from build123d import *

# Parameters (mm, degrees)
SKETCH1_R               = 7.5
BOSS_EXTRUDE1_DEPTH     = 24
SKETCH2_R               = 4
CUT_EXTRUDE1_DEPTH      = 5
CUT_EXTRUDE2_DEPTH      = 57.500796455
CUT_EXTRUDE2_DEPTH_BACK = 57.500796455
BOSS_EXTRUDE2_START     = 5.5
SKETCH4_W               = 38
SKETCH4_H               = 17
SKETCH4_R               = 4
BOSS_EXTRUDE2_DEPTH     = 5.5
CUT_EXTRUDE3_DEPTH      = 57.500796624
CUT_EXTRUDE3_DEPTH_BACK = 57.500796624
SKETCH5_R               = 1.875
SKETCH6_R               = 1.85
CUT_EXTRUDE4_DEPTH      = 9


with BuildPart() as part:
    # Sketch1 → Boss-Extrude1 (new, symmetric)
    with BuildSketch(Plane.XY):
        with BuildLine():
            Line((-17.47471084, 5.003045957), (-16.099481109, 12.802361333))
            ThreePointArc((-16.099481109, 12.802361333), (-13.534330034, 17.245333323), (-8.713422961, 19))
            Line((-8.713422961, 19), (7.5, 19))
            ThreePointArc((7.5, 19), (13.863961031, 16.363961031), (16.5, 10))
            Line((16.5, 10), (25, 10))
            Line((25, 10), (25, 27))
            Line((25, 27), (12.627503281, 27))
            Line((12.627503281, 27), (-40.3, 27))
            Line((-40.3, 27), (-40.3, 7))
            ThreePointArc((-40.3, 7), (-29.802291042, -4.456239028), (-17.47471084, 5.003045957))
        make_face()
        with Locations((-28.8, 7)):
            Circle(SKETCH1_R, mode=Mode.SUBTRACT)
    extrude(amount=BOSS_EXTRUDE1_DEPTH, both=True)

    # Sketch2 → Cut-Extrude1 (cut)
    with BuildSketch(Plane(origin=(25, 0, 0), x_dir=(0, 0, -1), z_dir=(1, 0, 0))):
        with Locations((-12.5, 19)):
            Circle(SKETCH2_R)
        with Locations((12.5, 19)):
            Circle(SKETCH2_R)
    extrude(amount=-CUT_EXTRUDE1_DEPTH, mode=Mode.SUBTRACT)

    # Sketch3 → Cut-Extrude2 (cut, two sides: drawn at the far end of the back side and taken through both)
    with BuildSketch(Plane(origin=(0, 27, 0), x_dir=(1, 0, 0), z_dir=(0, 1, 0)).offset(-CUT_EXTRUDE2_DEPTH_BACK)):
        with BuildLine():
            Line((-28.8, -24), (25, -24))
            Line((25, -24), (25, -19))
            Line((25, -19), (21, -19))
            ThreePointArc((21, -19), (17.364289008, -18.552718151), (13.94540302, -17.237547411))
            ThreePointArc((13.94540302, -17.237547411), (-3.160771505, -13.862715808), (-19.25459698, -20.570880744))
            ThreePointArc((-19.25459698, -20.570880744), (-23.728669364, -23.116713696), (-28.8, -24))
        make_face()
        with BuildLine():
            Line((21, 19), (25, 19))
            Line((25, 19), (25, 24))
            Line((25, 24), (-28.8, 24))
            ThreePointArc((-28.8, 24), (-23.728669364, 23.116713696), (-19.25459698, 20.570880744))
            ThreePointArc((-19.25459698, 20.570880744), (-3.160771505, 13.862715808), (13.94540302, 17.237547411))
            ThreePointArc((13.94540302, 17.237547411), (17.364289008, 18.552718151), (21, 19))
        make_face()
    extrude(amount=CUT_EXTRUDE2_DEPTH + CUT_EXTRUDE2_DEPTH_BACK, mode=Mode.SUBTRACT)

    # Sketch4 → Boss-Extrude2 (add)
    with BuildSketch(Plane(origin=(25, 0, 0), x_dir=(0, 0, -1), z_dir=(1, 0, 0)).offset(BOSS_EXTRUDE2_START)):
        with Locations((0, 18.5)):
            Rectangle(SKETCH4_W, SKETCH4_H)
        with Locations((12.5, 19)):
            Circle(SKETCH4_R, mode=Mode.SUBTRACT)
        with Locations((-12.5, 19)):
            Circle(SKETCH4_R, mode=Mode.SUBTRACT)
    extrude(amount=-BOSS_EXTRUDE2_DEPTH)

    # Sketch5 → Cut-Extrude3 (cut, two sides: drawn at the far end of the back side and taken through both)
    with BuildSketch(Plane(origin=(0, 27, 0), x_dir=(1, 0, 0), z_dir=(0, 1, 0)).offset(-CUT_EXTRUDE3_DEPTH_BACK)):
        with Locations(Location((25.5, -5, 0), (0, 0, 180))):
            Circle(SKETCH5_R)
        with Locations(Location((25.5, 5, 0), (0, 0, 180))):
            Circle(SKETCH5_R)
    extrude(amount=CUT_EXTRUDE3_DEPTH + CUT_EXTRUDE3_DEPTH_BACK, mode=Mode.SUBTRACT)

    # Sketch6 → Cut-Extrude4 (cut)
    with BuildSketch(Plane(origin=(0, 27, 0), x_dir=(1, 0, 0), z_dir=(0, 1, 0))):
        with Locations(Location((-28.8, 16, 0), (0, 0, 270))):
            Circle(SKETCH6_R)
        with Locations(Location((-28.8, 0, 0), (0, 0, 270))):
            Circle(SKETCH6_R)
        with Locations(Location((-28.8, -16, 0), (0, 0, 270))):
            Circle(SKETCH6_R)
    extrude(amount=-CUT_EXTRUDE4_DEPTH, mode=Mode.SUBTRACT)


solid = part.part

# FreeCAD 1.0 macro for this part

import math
import FreeCAD as App
import Part
import Sketcher
from FreeCAD import Vector
Q = App.Units.Quantity

doc = App.newDocument("Part")
body = doc.addObject("PartDesign::Body", "Body")

# Sketch on XY plane
sketch1 = body.newObject("Sketcher::SketchObject", "Sketch")
sketch1.AttachmentSupport = (doc.getObject("XY_Plane"), [""])
sketch1.MapMode = "FlatFace"
sketch1.addGeometry([
    Part.LineSegment(Vector(-17, 5, 0), Vector(-16, 13, 0)),  # 0
    Part.ArcOfCircle(Part.Circle(Vector(-9, 11, 0), Vector(0, 0, 1), 8), math.radians(90), math.radians(170)),  # 1
    Part.LineSegment(Vector(-9, 19, 0), Vector(8, 19, 0)),  # 2
    Part.ArcOfCircle(Part.Circle(Vector(8, 10, 0), Vector(0, 0, 1), 9), math.radians(0), math.radians(90)),  # 3
    Part.LineSegment(Vector(16, 10, 0), Vector(25, 10, 0)),  # 4
    Part.LineSegment(Vector(25, 10, 0), Vector(25, 27, 0)),  # 5
    Part.LineSegment(Vector(25, 27, 0), Vector(-40, 27, 0)),  # 6
    Part.LineSegment(Vector(-40, 27, 0), Vector(-40, 7, 0)),  # 7
    Part.ArcOfCircle(Part.Circle(Vector(-29, 7, 0), Vector(0, 0, 1), 12), math.radians(180), math.radians(350)),  # 8
    Part.Circle(Vector(-29, 7, 0), Vector(0, 0, 1), 8),  # 9
], False)
sketch1.addConstraint([
    Sketcher.Constraint("Tangent", 0, 2, 1, 2),
    Sketcher.Constraint("Tangent", 1, 1, 2, 1),
    Sketcher.Constraint("Tangent", 2, 2, 3, 2),
    Sketcher.Constraint("Coincident", 3, 1, 4, 1),
    Sketcher.Constraint("Coincident", 4, 2, 5, 1),
    Sketcher.Constraint("Coincident", 5, 2, 6, 1),
    Sketcher.Constraint("Coincident", 6, 2, 7, 1),
    Sketcher.Constraint("Tangent", 7, 2, 8, 1),
    Sketcher.Constraint("Tangent", 8, 2, 0, 1),
    Sketcher.Constraint("Horizontal", 2),
    Sketcher.Constraint("Horizontal", 4),
    Sketcher.Constraint("Vertical", 5),
    Sketcher.Constraint("Horizontal", 6),
    Sketcher.Constraint("Vertical", 7),
    Sketcher.Constraint("Coincident", 9, 3, 8, 3),
    Sketcher.Constraint("Equal", 1, 9),
    Sketcher.Constraint("Diameter", 9, 15.0),
    Sketcher.Constraint("Radius", 3, 9.0),
    Sketcher.Constraint("Radius", 8, 11.5),
    Sketcher.Constraint("DistanceY", 5, 1, 5, 2, 17.0),
    Sketcher.Constraint("DistanceY", 7, 2, 7, 1, 20.0),
    Sketcher.Constraint("Angle", 0, Q("80 deg")),
    Sketcher.Constraint("DistanceX", 4, 1, 4, 2, 8.5),
    Sketcher.Constraint("DistanceX", 6, 2, 6, 1, 65.3),
    Sketcher.Constraint("DistanceY", -1, 1, 3, 3, 10.0),
    Sketcher.Constraint("DistanceY", -1, 1, 8, 3, 7.0),
    Sketcher.Constraint("DistanceX", -1, 1, 4, 2, 25.0),
])
pad1 = body.newObject("PartDesign::Pad", "Pad")
pad1.Profile = sketch1
pad1.Length = 48
pad1.Midplane = True

# Sketch on YZ plane
sketch2 = body.newObject("Sketcher::SketchObject", "Sketch001")
sketch2.AttachmentSupport = (doc.getObject("YZ_Plane"), [""])
sketch2.MapMode = "FlatFace"
sketch2.AttachmentOffset = App.Placement(Vector(0, 0, 25), App.Rotation())
sketch2.addGeometry([
    Part.Circle(Vector(19, 12.5, 0), Vector(0, 0, 1), 4),
    Part.Circle(Vector(19, -12.5, 0), Vector(0, 0, 1), 4),
], False)
sketch2.addConstraint([
    Sketcher.Constraint("Equal", 0, 1),
    Sketcher.Constraint("Symmetric", 0, 3, 1, 3, -1),
    Sketcher.Constraint("Diameter", 0, 8.0),
    Sketcher.Constraint("DistanceX", -1, 1, 0, 3, 19.0),
    Sketcher.Constraint("DistanceY", 1, 3, 0, 3, 25.0),
])
pocket1 = body.newObject("PartDesign::Pocket", "Pocket")
pocket1.Profile = sketch2
pocket1.Length = 5

# Sketch on XZ plane
sketch3 = body.newObject("Sketcher::SketchObject", "Sketch002")
sketch3.AttachmentSupport = (doc.getObject("XZ_Plane"), [""])
sketch3.MapMode = "FlatFace"
sketch3.AttachmentOffset = App.Placement(Vector(0, 0, -27), App.Rotation())
sketch3.addGeometry([
    Part.LineSegment(Vector(-28.8, 24, 0), Vector(25, 24, 0)),  # 0
    Part.LineSegment(Vector(25, 24, 0), Vector(25, 19, 0)),  # 1
    Part.LineSegment(Vector(25, 19, 0), Vector(21, 19, 0)),  # 2
    Part.ArcOfCircle(Part.Circle(Vector(21, 4, 0), Vector(0, 0, 1), 15), math.radians(90), math.radians(118)),  # 3
    Part.ArcOfCircle(Part.Circle(Vector(-0.2, 43.7, 0), Vector(0, 0, 1), 30), math.radians(-130), math.radians(-62)),  # 4
    Part.ArcOfCircle(Part.Circle(Vector(-28.8, 9, 0), Vector(0, 0, 1), 15), math.radians(50), math.radians(90)),  # 5
    Part.LineSegment(Vector(21, -19, 0), Vector(25, -19, 0)),  # 6
    Part.LineSegment(Vector(25, -19, 0), Vector(25, -24, 0)),  # 7
    Part.LineSegment(Vector(25, -24, 0), Vector(-28.8, -24, 0)),  # 8
    Part.ArcOfCircle(Part.Circle(Vector(-28.8, -9, 0), Vector(0, 0, 1), 15), math.radians(-90), math.radians(-50)),  # 9
    Part.ArcOfCircle(Part.Circle(Vector(-0.2, -43.7, 0), Vector(0, 0, 1), 30), math.radians(62), math.radians(130)),  # 10
    Part.ArcOfCircle(Part.Circle(Vector(21, -4, 0), Vector(0, 0, 1), 15), math.radians(-118), math.radians(-90)),  # 11
], False)
sketch3.addConstraint([
    Sketcher.Constraint("Coincident", 0, 2, 1, 1),
    Sketcher.Constraint("Coincident", 1, 2, 2, 1),
    Sketcher.Constraint("Tangent", 2, 2, 3, 1),
    Sketcher.Constraint("Tangent", 3, 2, 4, 2),
    Sketcher.Constraint("Tangent", 4, 1, 5, 1),
    Sketcher.Constraint("Tangent", 5, 2, 0, 1),
    Sketcher.Constraint("Coincident", 6, 2, 7, 1),
    Sketcher.Constraint("Coincident", 7, 2, 8, 1),
    Sketcher.Constraint("Tangent", 8, 2, 9, 1),
    Sketcher.Constraint("Tangent", 9, 2, 10, 2),
    Sketcher.Constraint("Tangent", 10, 1, 11, 1),
    Sketcher.Constraint("Tangent", 11, 2, 6, 1),
    Sketcher.Constraint("Horizontal", 0),
    Sketcher.Constraint("Vertical", 1),
    Sketcher.Constraint("Horizontal", 2),
    Sketcher.Constraint("Horizontal", 6),
    Sketcher.Constraint("Vertical", 7),
    Sketcher.Constraint("Horizontal", 8),
    Sketcher.Constraint("Equal", 3, 5),
    Sketcher.Constraint("Equal", 5, 9),
    Sketcher.Constraint("Equal", 4, 10),
    Sketcher.Constraint("Equal", 9, 11),
    Sketcher.Constraint("Symmetric", 5, 3, 9, 3, -1),
    Sketcher.Constraint("Symmetric", 3, 3, 11, 3, -1),
    Sketcher.Constraint("Vertical", 1, 2, 6, 2),
    Sketcher.Constraint("Radius", 3, 15.0),
    Sketcher.Constraint("Radius", 4, 30.0),
    Sketcher.Constraint("DistanceX", 2, 2, 2, 1, 4.0),
    Sketcher.Constraint("DistanceY", 1, 2, 1, 1, 5.0),
    Sketcher.Constraint("DistanceX", 0, 1, 0, 2, 53.8),
    Sketcher.Constraint("DistanceX", -1, 1, 3, 3, 21.0),
    Sketcher.Constraint("DistanceY", -1, 1, 3, 3, 4.0),
])
pocket2 = body.newObject("PartDesign::Pocket", "Pocket001")
pocket2.Profile = sketch3
pocket2.Type = "ThroughAll"
pocket2.Midplane = True

# Sketch on YZ plane
sketch4 = body.newObject("Sketcher::SketchObject", "Sketch003")
sketch4.AttachmentSupport = (doc.getObject("YZ_Plane"), [""])
sketch4.MapMode = "FlatFace"
sketch4.AttachmentOffset = App.Placement(Vector(0, 0, 30.5), App.Rotation())
sketch4.addGeometry([
    Part.LineSegment(Vector(27, 19, 0), Vector(10, 19, 0)),  # 0
    Part.LineSegment(Vector(10, 19, 0), Vector(10, -19, 0)),  # 1
    Part.LineSegment(Vector(10, -19, 0), Vector(27, -19, 0)),  # 2
    Part.LineSegment(Vector(27, -19, 0), Vector(27, 19, 0)),  # 3
    Part.Circle(Vector(19, 12.5, 0), Vector(0, 0, 1), 4),  # 4
    Part.Circle(Vector(19, -12.5, 0), Vector(0, 0, 1), 4),  # 5
], False)
sketch4.addConstraint([
    Sketcher.Constraint("Coincident", 0, 2, 1, 1),
    Sketcher.Constraint("Coincident", 1, 2, 2, 1),
    Sketcher.Constraint("Coincident", 2, 2, 3, 1),
    Sketcher.Constraint("Coincident", 3, 2, 0, 1),
    Sketcher.Constraint("Horizontal", 0),
    Sketcher.Constraint("Vertical", 1),
    Sketcher.Constraint("Horizontal", 2),
    Sketcher.Constraint("Vertical", 3),
    Sketcher.Constraint("Equal", 4, 5),
    Sketcher.Constraint("Symmetric", 4, 3, 5, 3, -1),
    Sketcher.Constraint("Diameter", 4, 8.0),
    Sketcher.Constraint("DistanceX", 0, 2, 0, 1, 17.0),
    Sketcher.Constraint("DistanceY", 1, 2, 1, 1, 38.0),
    Sketcher.Constraint("DistanceX", -1, 1, 4, 3, 19.0),
    Sketcher.Constraint("DistanceX", -1, 1, 0, 2, 10.0),
    Sketcher.Constraint("DistanceY", -1, 1, 0, 2, 19.0),
    Sketcher.Constraint("DistanceY", 5, 3, 4, 3, 25.0),
])
pad2 = body.newObject("PartDesign::Pad", "Pad001")
pad2.Profile = sketch4
pad2.Length = 5.5
pad2.Reversed = True

# Sketch on XZ plane
sketch5 = body.newObject("Sketcher::SketchObject", "Sketch004")
sketch5.AttachmentSupport = (doc.getObject("XZ_Plane"), [""])
sketch5.MapMode = "FlatFace"
sketch5.AttachmentOffset = App.Placement(Vector(0, 0, -27), App.Rotation())
sketch5.addGeometry([
    Part.Circle(Vector(25.5, 5, 0), Vector(0, 0, 1), 1.9),
    Part.Circle(Vector(25.5, -5, 0), Vector(0, 0, 1), 1.9),
], False)
sketch5.addConstraint([
    Sketcher.Constraint("Equal", 0, 1),
    Sketcher.Constraint("Symmetric", 0, 3, 1, 3, -1),
    Sketcher.Constraint("Diameter", 0, 3.75),
    Sketcher.Constraint("DistanceY", -1, 1, 0, 3, 5.0),
    Sketcher.Constraint("DistanceX", -1, 1, 0, 3, 25.5),
])
pocket3 = body.newObject("PartDesign::Pocket", "Pocket002")
pocket3.Profile = sketch5
pocket3.Type = "ThroughAll"
pocket3.Midplane = True

# Sketch on XZ plane
sketch6 = body.newObject("Sketcher::SketchObject", "Sketch005")
sketch6.AttachmentSupport = (doc.getObject("XZ_Plane"), [""])
sketch6.MapMode = "FlatFace"
sketch6.AttachmentOffset = App.Placement(Vector(0, 0, -27), App.Rotation())
sketch6.addGeometry([
    Part.Circle(Vector(-28.8, -16, 0), Vector(0, 0, 1), 1.9),
    Part.Circle(Vector(-28.8, 0, 0), Vector(0, 0, 1), 1.9),
    Part.Circle(Vector(-28.8, 16, 0), Vector(0, 0, 1), 1.9),
], False)
sketch6.addConstraint([
    Sketcher.Constraint("Equal", 0, 1),
    Sketcher.Constraint("Equal", 1, 2),
    Sketcher.Constraint("Symmetric", 0, 3, 2, 3, -1),
    Sketcher.Constraint("PointOnObject", 1, 3, -1),
    Sketcher.Constraint("Vertical", 0, 3, 1, 3),
    Sketcher.Constraint("Diameter", 0, 3.7),
    Sketcher.Constraint("DistanceY", 0, 3, -1, 1, 16.0),
    Sketcher.Constraint("DistanceX", 0, 3, -1, 1, 28.8),
])
pocket4 = body.newObject("PartDesign::Pocket", "Pocket003")
pocket4.Profile = sketch6
pocket4.Length = 9
pocket4.Reversed = True

doc.recompute()
